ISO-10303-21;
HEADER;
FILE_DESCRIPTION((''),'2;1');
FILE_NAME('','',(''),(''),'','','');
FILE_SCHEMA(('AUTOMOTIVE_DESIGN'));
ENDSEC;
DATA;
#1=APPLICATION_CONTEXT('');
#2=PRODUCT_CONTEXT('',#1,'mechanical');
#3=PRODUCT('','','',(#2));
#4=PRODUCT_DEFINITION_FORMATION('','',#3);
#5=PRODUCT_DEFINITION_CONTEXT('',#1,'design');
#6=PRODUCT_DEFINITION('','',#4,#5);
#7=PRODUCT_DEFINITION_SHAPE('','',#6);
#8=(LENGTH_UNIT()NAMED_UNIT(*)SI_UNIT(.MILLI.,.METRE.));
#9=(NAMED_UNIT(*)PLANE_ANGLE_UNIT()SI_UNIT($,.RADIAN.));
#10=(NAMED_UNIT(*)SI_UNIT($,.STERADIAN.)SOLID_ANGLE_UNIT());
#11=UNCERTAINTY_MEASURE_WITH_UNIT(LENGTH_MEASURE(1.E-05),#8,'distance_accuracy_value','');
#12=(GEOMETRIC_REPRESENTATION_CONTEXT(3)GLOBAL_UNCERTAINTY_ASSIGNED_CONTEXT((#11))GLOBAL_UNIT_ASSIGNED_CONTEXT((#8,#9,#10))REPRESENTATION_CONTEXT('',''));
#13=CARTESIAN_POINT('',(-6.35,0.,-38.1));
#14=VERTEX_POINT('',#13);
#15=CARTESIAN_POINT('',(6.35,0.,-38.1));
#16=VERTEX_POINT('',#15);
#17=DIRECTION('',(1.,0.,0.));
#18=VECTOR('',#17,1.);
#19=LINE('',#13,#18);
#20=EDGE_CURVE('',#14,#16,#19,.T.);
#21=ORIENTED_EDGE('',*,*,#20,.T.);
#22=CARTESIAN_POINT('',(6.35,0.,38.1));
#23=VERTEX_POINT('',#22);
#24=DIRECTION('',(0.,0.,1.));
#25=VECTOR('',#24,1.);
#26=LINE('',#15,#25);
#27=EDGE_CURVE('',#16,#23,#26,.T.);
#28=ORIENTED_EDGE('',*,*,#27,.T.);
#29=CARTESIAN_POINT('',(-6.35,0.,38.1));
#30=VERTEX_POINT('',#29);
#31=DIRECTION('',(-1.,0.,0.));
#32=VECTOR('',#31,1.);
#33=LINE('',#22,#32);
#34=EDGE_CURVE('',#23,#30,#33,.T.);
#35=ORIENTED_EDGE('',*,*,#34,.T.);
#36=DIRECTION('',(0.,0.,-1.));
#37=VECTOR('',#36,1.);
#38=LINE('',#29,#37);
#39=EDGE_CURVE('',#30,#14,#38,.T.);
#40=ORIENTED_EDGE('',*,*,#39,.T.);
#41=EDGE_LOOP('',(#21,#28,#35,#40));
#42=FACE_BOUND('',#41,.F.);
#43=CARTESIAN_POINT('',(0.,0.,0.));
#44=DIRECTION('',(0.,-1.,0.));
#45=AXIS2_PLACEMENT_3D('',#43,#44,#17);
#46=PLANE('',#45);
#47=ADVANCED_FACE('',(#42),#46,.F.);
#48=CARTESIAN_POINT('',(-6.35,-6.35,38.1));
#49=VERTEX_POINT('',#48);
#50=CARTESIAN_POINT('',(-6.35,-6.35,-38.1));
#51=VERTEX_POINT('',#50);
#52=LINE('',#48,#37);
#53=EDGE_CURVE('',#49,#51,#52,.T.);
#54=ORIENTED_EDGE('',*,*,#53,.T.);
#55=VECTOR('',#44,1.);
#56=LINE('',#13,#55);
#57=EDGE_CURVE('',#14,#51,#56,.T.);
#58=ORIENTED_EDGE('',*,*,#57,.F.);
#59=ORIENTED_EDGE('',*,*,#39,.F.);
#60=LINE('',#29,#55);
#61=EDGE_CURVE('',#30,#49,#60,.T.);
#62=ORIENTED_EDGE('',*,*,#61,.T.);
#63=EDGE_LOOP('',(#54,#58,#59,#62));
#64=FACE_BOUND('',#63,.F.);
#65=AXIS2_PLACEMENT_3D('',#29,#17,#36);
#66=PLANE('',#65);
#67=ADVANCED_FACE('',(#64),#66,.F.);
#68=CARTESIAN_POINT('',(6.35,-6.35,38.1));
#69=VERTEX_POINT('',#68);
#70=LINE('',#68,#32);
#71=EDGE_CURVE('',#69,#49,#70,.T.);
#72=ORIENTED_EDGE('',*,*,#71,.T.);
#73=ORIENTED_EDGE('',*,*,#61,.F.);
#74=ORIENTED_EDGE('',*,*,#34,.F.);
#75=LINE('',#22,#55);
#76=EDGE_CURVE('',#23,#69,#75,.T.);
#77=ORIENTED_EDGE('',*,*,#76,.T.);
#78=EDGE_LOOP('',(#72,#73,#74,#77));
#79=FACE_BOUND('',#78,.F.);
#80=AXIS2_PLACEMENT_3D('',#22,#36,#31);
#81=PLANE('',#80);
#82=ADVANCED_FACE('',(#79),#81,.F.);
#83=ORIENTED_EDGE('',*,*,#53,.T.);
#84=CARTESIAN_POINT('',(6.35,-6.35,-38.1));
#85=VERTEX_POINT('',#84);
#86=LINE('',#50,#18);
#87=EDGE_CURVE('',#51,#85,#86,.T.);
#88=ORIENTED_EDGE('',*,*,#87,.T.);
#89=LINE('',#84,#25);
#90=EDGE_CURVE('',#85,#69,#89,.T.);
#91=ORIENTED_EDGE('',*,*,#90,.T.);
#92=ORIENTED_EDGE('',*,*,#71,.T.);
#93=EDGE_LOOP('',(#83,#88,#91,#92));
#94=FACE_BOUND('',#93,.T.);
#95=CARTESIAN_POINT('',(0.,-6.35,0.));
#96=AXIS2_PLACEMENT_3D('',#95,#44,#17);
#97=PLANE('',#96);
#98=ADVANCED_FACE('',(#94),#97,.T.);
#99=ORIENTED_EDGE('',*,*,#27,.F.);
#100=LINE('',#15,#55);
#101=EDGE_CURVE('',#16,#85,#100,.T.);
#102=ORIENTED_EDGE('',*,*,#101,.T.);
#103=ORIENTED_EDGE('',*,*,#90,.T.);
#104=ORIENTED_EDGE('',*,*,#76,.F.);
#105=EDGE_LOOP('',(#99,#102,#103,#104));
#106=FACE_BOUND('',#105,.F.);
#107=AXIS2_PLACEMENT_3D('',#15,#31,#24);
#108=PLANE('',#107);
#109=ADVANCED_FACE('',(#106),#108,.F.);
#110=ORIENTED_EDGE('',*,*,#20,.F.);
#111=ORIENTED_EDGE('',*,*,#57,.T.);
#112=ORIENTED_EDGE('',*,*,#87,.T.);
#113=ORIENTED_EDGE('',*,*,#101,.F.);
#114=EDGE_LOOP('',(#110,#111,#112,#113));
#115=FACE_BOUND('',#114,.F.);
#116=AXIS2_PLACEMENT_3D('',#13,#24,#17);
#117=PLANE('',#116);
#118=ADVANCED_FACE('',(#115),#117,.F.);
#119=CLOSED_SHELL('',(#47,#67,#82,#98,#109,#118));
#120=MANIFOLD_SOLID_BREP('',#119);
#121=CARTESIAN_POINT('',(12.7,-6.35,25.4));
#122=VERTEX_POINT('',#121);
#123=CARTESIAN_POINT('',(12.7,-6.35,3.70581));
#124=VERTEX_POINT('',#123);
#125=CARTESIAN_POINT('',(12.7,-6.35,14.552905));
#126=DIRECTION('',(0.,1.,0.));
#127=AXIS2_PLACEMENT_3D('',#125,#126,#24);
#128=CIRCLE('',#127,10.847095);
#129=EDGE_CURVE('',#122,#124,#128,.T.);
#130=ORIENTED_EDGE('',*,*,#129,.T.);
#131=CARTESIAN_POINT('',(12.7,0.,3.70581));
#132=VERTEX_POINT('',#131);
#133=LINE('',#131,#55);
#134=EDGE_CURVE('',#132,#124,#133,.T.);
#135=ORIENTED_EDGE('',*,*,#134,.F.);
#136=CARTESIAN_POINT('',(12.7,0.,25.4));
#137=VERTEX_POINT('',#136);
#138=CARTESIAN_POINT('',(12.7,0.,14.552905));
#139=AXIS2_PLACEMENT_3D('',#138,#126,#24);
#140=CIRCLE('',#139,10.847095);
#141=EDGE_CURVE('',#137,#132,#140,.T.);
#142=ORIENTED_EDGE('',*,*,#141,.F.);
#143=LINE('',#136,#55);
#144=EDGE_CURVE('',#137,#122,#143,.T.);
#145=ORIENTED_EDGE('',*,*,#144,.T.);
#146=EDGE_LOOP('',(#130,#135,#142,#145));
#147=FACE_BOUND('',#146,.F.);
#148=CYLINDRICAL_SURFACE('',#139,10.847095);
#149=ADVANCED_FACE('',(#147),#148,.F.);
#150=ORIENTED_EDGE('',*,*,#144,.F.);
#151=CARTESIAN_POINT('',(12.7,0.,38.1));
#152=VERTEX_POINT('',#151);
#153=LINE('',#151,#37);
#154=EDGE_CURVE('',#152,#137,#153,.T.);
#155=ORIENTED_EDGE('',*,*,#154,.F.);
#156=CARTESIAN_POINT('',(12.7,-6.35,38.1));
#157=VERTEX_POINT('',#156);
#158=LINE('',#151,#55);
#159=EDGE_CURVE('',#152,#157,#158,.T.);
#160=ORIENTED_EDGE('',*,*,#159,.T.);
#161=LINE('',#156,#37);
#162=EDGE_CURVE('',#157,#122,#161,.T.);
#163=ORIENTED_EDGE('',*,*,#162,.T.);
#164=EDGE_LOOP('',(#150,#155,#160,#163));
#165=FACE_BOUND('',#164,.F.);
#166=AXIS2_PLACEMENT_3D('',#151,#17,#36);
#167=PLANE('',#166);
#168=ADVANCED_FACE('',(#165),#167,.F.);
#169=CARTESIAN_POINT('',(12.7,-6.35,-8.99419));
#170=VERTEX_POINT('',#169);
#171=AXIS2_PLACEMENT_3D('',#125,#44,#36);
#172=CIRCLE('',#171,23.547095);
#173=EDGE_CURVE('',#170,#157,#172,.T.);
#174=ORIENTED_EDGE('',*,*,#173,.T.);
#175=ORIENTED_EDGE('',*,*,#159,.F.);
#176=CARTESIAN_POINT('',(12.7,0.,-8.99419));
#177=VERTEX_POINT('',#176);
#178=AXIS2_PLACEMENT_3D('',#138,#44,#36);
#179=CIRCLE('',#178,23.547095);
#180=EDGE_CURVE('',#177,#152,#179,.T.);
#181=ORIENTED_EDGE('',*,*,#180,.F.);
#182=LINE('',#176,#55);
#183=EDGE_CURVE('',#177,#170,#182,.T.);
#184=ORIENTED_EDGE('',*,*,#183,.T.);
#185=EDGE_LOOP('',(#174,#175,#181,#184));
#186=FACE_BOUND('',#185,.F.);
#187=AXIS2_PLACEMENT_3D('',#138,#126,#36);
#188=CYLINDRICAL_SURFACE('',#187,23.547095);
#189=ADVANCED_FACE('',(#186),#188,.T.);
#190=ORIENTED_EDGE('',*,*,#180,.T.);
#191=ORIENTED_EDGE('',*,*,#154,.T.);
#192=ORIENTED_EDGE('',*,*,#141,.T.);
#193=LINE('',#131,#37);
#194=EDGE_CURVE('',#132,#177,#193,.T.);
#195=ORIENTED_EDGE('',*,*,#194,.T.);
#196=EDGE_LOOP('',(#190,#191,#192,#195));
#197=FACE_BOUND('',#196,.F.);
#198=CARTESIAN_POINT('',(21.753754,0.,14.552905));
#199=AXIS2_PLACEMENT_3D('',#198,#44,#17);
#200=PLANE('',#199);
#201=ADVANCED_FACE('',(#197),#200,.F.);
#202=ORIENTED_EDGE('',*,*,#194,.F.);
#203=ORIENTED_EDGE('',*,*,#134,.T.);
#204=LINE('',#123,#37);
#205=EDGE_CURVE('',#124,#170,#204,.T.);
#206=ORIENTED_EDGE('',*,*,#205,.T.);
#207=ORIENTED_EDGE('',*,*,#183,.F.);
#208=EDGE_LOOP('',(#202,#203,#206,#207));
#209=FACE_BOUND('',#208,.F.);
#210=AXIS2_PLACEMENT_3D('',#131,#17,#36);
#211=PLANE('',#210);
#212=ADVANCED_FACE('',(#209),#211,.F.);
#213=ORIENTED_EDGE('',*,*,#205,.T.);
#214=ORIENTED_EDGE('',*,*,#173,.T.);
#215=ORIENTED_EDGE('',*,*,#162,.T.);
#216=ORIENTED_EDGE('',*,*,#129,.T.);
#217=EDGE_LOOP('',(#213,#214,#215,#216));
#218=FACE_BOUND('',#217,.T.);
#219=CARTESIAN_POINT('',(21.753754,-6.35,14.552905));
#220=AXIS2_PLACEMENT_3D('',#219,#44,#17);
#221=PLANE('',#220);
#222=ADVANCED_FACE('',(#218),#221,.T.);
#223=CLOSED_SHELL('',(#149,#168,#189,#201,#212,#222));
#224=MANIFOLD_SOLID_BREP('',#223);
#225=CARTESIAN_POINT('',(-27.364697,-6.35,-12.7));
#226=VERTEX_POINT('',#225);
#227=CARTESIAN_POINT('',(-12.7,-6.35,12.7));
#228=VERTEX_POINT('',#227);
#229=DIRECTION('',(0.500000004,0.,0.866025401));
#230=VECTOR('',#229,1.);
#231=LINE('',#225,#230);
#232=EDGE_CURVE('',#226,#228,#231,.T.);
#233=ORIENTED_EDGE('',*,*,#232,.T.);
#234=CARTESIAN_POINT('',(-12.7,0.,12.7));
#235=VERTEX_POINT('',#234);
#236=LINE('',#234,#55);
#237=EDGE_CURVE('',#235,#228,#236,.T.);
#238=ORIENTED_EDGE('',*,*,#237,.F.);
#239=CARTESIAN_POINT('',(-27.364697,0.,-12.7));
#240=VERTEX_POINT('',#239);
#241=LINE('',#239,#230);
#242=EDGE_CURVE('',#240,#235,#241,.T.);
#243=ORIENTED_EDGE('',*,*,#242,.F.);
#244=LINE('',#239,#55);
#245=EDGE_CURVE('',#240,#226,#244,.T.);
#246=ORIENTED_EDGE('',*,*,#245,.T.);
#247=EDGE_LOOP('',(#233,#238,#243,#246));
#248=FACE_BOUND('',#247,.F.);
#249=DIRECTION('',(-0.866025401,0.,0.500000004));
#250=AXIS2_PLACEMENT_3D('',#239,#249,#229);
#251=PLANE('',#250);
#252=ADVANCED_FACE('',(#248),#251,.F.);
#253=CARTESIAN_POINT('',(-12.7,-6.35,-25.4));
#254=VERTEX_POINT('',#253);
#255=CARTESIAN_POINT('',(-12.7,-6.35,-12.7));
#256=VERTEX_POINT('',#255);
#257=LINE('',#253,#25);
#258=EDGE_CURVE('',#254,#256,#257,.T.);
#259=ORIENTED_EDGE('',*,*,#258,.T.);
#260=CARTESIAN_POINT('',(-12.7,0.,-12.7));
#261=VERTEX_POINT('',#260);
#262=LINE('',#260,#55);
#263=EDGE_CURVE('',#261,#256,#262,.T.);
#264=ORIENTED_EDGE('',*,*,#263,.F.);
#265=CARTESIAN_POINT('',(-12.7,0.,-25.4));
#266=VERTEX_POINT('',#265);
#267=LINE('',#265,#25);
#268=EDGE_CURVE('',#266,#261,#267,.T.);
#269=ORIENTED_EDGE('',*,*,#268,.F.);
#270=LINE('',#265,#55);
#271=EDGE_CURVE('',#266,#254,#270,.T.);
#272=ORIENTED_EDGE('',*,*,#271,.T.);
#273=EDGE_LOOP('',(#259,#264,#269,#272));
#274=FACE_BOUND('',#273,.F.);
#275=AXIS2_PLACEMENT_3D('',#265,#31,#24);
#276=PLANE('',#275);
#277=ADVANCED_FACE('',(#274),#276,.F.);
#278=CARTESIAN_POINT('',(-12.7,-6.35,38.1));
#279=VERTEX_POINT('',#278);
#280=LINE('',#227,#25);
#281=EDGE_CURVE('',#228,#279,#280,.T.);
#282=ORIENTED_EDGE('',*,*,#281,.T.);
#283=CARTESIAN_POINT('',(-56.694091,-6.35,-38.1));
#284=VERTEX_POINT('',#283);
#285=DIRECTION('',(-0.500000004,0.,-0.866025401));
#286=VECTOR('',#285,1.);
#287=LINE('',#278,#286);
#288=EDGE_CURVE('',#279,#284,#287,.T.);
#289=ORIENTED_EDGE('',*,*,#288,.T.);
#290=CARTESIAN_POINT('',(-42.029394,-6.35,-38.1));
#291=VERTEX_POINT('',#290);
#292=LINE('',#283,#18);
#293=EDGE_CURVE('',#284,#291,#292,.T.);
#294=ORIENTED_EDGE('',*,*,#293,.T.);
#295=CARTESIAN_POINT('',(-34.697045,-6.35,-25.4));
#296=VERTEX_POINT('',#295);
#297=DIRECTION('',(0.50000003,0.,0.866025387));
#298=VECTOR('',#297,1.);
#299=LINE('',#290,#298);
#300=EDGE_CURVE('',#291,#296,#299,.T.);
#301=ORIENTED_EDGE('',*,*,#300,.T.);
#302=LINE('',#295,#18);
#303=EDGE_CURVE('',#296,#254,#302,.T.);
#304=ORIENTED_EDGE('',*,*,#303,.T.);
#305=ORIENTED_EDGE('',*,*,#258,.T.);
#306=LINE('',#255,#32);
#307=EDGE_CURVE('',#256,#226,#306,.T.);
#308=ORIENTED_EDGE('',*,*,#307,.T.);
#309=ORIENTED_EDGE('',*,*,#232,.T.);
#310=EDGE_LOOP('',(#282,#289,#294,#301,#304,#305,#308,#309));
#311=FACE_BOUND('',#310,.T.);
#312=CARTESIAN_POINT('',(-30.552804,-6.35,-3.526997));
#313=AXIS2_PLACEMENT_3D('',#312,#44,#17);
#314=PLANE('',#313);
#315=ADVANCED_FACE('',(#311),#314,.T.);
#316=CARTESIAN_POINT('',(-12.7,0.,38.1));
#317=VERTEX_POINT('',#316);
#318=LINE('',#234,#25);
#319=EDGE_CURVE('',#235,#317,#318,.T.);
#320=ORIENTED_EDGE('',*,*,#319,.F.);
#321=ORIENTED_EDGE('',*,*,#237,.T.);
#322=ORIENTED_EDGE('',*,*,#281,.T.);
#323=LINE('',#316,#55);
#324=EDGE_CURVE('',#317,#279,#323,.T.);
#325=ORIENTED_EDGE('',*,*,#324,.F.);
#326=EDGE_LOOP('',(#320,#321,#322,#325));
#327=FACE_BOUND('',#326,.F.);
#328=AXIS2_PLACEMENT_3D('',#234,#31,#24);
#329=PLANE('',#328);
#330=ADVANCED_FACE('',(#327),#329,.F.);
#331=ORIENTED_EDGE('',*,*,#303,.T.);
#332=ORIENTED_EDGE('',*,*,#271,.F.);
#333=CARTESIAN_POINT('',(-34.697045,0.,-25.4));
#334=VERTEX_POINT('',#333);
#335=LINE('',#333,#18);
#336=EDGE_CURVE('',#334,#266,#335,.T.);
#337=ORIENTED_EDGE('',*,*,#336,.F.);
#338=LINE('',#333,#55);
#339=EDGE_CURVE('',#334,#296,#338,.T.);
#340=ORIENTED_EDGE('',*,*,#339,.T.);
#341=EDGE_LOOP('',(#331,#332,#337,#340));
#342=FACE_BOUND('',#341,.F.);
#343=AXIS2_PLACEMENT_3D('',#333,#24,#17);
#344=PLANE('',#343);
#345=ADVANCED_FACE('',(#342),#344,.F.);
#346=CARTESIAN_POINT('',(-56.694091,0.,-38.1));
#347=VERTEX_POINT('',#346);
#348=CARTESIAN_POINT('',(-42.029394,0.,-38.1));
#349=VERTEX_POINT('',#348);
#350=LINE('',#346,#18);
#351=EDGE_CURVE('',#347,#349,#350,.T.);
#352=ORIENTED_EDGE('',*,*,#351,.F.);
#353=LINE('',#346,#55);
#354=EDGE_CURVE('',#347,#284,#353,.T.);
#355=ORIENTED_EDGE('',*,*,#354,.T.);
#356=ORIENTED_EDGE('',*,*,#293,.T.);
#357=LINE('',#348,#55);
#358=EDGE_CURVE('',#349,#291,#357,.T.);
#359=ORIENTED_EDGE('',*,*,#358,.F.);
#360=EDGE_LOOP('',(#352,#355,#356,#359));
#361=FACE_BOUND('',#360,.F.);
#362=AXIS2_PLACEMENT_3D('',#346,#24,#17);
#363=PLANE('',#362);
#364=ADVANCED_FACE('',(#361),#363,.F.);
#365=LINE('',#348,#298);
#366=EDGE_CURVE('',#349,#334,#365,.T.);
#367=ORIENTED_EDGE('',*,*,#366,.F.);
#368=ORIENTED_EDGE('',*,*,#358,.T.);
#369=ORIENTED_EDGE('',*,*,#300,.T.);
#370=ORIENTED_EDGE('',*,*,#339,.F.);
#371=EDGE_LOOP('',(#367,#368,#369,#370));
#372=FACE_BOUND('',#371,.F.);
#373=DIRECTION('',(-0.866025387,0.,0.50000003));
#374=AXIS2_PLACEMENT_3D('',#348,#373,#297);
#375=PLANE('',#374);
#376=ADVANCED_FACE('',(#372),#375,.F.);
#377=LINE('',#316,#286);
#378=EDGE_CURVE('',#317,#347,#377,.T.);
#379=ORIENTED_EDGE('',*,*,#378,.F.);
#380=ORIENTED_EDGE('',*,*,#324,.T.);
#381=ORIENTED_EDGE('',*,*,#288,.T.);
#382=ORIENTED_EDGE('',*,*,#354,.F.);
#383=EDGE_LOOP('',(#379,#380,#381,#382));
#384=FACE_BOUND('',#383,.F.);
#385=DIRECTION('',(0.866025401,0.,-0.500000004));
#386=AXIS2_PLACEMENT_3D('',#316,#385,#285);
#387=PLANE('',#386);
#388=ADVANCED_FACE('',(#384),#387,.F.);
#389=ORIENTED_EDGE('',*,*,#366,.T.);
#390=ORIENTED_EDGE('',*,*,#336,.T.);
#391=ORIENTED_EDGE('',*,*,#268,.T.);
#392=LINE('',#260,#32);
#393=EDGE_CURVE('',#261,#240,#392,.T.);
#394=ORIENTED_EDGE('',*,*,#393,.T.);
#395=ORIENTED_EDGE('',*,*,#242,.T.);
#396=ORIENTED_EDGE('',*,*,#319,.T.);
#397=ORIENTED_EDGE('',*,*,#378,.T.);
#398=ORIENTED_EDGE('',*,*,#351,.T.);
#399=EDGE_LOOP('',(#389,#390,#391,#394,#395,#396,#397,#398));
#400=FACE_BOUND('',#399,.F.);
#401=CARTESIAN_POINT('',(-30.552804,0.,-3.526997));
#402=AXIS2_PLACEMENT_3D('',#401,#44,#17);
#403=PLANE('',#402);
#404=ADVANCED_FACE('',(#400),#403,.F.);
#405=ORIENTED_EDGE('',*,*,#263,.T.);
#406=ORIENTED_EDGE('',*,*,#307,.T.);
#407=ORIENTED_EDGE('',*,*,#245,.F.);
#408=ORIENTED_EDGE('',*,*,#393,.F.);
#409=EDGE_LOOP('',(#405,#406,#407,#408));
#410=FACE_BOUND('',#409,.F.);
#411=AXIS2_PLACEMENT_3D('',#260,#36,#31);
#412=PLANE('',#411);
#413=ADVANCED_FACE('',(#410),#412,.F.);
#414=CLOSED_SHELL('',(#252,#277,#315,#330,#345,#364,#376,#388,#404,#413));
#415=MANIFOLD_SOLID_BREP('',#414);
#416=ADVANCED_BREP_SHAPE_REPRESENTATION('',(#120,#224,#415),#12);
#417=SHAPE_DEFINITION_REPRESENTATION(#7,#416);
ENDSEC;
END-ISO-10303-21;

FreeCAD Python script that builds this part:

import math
import FreeCAD as App
import Part
import Sketcher
from FreeCAD import Vector
Q = App.Units.Quantity

doc = App.newDocument("Part")
body = doc.addObject("PartDesign::Body", "Body")
body.AllowCompound = True

# Sketch on XZ plane
sketch1 = doc.addObject("Sketcher::SketchObject", "Sketch")
body.addObject(sketch1)
sketch1.AttachmentSupport = (doc.XZ_Plane, [""])
sketch1.MapMode = "FlatFace"
sketch1.addGeometry(Part.LineSegment(Vector(-13, 13, 0), Vector(-13, 38, 0)), False)
sketch1.addGeometry(Part.LineSegment(Vector(-13, 38, 0), Vector(-57, -38, 0)), False)
sketch1.addGeometry(Part.LineSegment(Vector(-57, -38, 0), Vector(-42, -38, 0)), False)
sketch1.addGeometry(Part.LineSegment(Vector(-42, -38, 0), Vector(-35, -25, 0)), False)
sketch1.addGeometry(Part.LineSegment(Vector(-35, -25, 0), Vector(-13, -25, 0)), False)
sketch1.addGeometry(Part.LineSegment(Vector(-13, -25, 0), Vector(-13, -13, 0)), False)
sketch1.addGeometry(Part.LineSegment(Vector(-13, -13, 0), Vector(-27, -13, 0)), False)
sketch1.addGeometry(Part.LineSegment(Vector(-27, -13, 0), Vector(-13, 13, 0)), False)
sketch1.addGeometry(Part.LineSegment(Vector(6, 38, 0), Vector(-6, 38, 0)), False)
sketch1.addGeometry(Part.LineSegment(Vector(-6, 38, 0), Vector(-6, -38, 0)), False)
sketch1.addGeometry(Part.LineSegment(Vector(-6, -38, 0), Vector(6, -38, 0)), False)
sketch1.addGeometry(Part.LineSegment(Vector(6, -38, 0), Vector(6, 38, 0)), False)
sketch1.addGeometry(Part.ArcOfCircle(Part.Circle(Vector(13, 15, 0), Vector(0, 0, 1), 24), math.radians(-90), math.radians(90)), False)
sketch1.addGeometry(Part.LineSegment(Vector(13, 38, 0), Vector(13, 25, 0)), False)
sketch1.addGeometry(Part.ArcOfCircle(Part.Circle(Vector(13, 15, 0), Vector(0, 0, 1), 11), math.radians(-90), math.radians(90)), False)
sketch1.addGeometry(Part.LineSegment(Vector(13, 4, 0), Vector(13, -9, 0)), False)
sketch1.addConstraint(Sketcher.Constraint("Coincident", 0, 2, 1, 1))
sketch1.addConstraint(Sketcher.Constraint("Coincident", 1, 2, 2, 1))
sketch1.addConstraint(Sketcher.Constraint("Coincident", 2, 2, 3, 1))
sketch1.addConstraint(Sketcher.Constraint("Coincident", 3, 2, 4, 1))
sketch1.addConstraint(Sketcher.Constraint("Coincident", 4, 2, 5, 1))
sketch1.addConstraint(Sketcher.Constraint("Coincident", 5, 2, 6, 1))
sketch1.addConstraint(Sketcher.Constraint("Coincident", 6, 2, 7, 1))
sketch1.addConstraint(Sketcher.Constraint("Coincident", 7, 2, 0, 1))
sketch1.addConstraint(Sketcher.Constraint("Coincident", 8, 2, 9, 1))
sketch1.addConstraint(Sketcher.Constraint("Coincident", 9, 2, 10, 1))
sketch1.addConstraint(Sketcher.Constraint("Coincident", 10, 2, 11, 1))
sketch1.addConstraint(Sketcher.Constraint("Coincident", 11, 2, 8, 1))
sketch1.addConstraint(Sketcher.Constraint("Coincident", 12, 2, 13, 1))
sketch1.addConstraint(Sketcher.Constraint("Coincident", 13, 2, 14, 2))
sketch1.addConstraint(Sketcher.Constraint("Coincident", 14, 1, 15, 1))
sketch1.addConstraint(Sketcher.Constraint("Coincident", 15, 2, 12, 1))
sketch1.addConstraint(Sketcher.Constraint("Vertical", 0))
sketch1.addConstraint(Sketcher.Constraint("Horizontal", 2))
sketch1.addConstraint(Sketcher.Constraint("Horizontal", 4))
sketch1.addConstraint(Sketcher.Constraint("Vertical", 5))
sketch1.addConstraint(Sketcher.Constraint("Horizontal", 6))
sketch1.addConstraint(Sketcher.Constraint("Horizontal", 8))
sketch1.addConstraint(Sketcher.Constraint("Vertical", 9))
sketch1.addConstraint(Sketcher.Constraint("Horizontal", 10))
sketch1.addConstraint(Sketcher.Constraint("Vertical", 11))
sketch1.addConstraint(Sketcher.Constraint("Vertical", 13))
sketch1.addConstraint(Sketcher.Constraint("Vertical", 15))
sketch1.addConstraint(Sketcher.Constraint("Coincident", 14, 3, 12, 3))
sketch1.addConstraint(Sketcher.Constraint("Symmetric", 8, 2, 10, 2, -1, 1))
sketch1.addConstraint(Sketcher.Constraint("Symmetric", 4, 2, 13, 2, -1, 1))
sketch1.addConstraint(Sketcher.Constraint("Symmetric", 0, 2, 12, 2, -2))
sketch1.addConstraint(Sketcher.Constraint("Parallel", 1, 3))
sketch1.addConstraint(Sketcher.Constraint("Parallel", 3, 7))
sketch1.addConstraint(Sketcher.Constraint("Horizontal", 0, 2, 8, 2))
sketch1.addConstraint(Sketcher.Constraint("Horizontal", 2, 2, 9, 2))
sketch1.addConstraint(Sketcher.Constraint("Vertical", 14, 3, 12, 2))
sketch1.addConstraint(Sketcher.Constraint("Vertical", 13, 2, 14, 1))
sketch1.addConstraint(Sketcher.Constraint("Equal", 2, 6))
sketch1.addConstraint(Sketcher.Constraint("Equal", 10, 5))
sketch1.addConstraint(Sketcher.Constraint("Equal", 5, 13))
sketch1.addConstraint(Sketcher.Constraint("DistanceY", 0, 1, 0, 2, Q("1 in")))
sketch1.addConstraint(Sketcher.Constraint("DistanceY", 9, 2, 9, 1, Q("3 in")))
sketch1.addConstraint(Sketcher.Constraint("DistanceX", 8, 2, 8, 1, Q("0.5 in")))
sketch1.addConstraint(Sketcher.Constraint("Angle", 1, Q("-120 deg")))
sketch1.addConstraint(Sketcher.Constraint("DistanceX", 0, 2, 12, 3, Q("1 in")))
sketch1.addConstraint(Sketcher.Constraint("Radius", 12, Q("23.547095 mm")))
pad1 = doc.addObject("PartDesign::Pad", "Pad")
body.addObject(pad1)
pad1.Profile = sketch1
pad1.Length = Q("0.25 in")

doc.recompute()
